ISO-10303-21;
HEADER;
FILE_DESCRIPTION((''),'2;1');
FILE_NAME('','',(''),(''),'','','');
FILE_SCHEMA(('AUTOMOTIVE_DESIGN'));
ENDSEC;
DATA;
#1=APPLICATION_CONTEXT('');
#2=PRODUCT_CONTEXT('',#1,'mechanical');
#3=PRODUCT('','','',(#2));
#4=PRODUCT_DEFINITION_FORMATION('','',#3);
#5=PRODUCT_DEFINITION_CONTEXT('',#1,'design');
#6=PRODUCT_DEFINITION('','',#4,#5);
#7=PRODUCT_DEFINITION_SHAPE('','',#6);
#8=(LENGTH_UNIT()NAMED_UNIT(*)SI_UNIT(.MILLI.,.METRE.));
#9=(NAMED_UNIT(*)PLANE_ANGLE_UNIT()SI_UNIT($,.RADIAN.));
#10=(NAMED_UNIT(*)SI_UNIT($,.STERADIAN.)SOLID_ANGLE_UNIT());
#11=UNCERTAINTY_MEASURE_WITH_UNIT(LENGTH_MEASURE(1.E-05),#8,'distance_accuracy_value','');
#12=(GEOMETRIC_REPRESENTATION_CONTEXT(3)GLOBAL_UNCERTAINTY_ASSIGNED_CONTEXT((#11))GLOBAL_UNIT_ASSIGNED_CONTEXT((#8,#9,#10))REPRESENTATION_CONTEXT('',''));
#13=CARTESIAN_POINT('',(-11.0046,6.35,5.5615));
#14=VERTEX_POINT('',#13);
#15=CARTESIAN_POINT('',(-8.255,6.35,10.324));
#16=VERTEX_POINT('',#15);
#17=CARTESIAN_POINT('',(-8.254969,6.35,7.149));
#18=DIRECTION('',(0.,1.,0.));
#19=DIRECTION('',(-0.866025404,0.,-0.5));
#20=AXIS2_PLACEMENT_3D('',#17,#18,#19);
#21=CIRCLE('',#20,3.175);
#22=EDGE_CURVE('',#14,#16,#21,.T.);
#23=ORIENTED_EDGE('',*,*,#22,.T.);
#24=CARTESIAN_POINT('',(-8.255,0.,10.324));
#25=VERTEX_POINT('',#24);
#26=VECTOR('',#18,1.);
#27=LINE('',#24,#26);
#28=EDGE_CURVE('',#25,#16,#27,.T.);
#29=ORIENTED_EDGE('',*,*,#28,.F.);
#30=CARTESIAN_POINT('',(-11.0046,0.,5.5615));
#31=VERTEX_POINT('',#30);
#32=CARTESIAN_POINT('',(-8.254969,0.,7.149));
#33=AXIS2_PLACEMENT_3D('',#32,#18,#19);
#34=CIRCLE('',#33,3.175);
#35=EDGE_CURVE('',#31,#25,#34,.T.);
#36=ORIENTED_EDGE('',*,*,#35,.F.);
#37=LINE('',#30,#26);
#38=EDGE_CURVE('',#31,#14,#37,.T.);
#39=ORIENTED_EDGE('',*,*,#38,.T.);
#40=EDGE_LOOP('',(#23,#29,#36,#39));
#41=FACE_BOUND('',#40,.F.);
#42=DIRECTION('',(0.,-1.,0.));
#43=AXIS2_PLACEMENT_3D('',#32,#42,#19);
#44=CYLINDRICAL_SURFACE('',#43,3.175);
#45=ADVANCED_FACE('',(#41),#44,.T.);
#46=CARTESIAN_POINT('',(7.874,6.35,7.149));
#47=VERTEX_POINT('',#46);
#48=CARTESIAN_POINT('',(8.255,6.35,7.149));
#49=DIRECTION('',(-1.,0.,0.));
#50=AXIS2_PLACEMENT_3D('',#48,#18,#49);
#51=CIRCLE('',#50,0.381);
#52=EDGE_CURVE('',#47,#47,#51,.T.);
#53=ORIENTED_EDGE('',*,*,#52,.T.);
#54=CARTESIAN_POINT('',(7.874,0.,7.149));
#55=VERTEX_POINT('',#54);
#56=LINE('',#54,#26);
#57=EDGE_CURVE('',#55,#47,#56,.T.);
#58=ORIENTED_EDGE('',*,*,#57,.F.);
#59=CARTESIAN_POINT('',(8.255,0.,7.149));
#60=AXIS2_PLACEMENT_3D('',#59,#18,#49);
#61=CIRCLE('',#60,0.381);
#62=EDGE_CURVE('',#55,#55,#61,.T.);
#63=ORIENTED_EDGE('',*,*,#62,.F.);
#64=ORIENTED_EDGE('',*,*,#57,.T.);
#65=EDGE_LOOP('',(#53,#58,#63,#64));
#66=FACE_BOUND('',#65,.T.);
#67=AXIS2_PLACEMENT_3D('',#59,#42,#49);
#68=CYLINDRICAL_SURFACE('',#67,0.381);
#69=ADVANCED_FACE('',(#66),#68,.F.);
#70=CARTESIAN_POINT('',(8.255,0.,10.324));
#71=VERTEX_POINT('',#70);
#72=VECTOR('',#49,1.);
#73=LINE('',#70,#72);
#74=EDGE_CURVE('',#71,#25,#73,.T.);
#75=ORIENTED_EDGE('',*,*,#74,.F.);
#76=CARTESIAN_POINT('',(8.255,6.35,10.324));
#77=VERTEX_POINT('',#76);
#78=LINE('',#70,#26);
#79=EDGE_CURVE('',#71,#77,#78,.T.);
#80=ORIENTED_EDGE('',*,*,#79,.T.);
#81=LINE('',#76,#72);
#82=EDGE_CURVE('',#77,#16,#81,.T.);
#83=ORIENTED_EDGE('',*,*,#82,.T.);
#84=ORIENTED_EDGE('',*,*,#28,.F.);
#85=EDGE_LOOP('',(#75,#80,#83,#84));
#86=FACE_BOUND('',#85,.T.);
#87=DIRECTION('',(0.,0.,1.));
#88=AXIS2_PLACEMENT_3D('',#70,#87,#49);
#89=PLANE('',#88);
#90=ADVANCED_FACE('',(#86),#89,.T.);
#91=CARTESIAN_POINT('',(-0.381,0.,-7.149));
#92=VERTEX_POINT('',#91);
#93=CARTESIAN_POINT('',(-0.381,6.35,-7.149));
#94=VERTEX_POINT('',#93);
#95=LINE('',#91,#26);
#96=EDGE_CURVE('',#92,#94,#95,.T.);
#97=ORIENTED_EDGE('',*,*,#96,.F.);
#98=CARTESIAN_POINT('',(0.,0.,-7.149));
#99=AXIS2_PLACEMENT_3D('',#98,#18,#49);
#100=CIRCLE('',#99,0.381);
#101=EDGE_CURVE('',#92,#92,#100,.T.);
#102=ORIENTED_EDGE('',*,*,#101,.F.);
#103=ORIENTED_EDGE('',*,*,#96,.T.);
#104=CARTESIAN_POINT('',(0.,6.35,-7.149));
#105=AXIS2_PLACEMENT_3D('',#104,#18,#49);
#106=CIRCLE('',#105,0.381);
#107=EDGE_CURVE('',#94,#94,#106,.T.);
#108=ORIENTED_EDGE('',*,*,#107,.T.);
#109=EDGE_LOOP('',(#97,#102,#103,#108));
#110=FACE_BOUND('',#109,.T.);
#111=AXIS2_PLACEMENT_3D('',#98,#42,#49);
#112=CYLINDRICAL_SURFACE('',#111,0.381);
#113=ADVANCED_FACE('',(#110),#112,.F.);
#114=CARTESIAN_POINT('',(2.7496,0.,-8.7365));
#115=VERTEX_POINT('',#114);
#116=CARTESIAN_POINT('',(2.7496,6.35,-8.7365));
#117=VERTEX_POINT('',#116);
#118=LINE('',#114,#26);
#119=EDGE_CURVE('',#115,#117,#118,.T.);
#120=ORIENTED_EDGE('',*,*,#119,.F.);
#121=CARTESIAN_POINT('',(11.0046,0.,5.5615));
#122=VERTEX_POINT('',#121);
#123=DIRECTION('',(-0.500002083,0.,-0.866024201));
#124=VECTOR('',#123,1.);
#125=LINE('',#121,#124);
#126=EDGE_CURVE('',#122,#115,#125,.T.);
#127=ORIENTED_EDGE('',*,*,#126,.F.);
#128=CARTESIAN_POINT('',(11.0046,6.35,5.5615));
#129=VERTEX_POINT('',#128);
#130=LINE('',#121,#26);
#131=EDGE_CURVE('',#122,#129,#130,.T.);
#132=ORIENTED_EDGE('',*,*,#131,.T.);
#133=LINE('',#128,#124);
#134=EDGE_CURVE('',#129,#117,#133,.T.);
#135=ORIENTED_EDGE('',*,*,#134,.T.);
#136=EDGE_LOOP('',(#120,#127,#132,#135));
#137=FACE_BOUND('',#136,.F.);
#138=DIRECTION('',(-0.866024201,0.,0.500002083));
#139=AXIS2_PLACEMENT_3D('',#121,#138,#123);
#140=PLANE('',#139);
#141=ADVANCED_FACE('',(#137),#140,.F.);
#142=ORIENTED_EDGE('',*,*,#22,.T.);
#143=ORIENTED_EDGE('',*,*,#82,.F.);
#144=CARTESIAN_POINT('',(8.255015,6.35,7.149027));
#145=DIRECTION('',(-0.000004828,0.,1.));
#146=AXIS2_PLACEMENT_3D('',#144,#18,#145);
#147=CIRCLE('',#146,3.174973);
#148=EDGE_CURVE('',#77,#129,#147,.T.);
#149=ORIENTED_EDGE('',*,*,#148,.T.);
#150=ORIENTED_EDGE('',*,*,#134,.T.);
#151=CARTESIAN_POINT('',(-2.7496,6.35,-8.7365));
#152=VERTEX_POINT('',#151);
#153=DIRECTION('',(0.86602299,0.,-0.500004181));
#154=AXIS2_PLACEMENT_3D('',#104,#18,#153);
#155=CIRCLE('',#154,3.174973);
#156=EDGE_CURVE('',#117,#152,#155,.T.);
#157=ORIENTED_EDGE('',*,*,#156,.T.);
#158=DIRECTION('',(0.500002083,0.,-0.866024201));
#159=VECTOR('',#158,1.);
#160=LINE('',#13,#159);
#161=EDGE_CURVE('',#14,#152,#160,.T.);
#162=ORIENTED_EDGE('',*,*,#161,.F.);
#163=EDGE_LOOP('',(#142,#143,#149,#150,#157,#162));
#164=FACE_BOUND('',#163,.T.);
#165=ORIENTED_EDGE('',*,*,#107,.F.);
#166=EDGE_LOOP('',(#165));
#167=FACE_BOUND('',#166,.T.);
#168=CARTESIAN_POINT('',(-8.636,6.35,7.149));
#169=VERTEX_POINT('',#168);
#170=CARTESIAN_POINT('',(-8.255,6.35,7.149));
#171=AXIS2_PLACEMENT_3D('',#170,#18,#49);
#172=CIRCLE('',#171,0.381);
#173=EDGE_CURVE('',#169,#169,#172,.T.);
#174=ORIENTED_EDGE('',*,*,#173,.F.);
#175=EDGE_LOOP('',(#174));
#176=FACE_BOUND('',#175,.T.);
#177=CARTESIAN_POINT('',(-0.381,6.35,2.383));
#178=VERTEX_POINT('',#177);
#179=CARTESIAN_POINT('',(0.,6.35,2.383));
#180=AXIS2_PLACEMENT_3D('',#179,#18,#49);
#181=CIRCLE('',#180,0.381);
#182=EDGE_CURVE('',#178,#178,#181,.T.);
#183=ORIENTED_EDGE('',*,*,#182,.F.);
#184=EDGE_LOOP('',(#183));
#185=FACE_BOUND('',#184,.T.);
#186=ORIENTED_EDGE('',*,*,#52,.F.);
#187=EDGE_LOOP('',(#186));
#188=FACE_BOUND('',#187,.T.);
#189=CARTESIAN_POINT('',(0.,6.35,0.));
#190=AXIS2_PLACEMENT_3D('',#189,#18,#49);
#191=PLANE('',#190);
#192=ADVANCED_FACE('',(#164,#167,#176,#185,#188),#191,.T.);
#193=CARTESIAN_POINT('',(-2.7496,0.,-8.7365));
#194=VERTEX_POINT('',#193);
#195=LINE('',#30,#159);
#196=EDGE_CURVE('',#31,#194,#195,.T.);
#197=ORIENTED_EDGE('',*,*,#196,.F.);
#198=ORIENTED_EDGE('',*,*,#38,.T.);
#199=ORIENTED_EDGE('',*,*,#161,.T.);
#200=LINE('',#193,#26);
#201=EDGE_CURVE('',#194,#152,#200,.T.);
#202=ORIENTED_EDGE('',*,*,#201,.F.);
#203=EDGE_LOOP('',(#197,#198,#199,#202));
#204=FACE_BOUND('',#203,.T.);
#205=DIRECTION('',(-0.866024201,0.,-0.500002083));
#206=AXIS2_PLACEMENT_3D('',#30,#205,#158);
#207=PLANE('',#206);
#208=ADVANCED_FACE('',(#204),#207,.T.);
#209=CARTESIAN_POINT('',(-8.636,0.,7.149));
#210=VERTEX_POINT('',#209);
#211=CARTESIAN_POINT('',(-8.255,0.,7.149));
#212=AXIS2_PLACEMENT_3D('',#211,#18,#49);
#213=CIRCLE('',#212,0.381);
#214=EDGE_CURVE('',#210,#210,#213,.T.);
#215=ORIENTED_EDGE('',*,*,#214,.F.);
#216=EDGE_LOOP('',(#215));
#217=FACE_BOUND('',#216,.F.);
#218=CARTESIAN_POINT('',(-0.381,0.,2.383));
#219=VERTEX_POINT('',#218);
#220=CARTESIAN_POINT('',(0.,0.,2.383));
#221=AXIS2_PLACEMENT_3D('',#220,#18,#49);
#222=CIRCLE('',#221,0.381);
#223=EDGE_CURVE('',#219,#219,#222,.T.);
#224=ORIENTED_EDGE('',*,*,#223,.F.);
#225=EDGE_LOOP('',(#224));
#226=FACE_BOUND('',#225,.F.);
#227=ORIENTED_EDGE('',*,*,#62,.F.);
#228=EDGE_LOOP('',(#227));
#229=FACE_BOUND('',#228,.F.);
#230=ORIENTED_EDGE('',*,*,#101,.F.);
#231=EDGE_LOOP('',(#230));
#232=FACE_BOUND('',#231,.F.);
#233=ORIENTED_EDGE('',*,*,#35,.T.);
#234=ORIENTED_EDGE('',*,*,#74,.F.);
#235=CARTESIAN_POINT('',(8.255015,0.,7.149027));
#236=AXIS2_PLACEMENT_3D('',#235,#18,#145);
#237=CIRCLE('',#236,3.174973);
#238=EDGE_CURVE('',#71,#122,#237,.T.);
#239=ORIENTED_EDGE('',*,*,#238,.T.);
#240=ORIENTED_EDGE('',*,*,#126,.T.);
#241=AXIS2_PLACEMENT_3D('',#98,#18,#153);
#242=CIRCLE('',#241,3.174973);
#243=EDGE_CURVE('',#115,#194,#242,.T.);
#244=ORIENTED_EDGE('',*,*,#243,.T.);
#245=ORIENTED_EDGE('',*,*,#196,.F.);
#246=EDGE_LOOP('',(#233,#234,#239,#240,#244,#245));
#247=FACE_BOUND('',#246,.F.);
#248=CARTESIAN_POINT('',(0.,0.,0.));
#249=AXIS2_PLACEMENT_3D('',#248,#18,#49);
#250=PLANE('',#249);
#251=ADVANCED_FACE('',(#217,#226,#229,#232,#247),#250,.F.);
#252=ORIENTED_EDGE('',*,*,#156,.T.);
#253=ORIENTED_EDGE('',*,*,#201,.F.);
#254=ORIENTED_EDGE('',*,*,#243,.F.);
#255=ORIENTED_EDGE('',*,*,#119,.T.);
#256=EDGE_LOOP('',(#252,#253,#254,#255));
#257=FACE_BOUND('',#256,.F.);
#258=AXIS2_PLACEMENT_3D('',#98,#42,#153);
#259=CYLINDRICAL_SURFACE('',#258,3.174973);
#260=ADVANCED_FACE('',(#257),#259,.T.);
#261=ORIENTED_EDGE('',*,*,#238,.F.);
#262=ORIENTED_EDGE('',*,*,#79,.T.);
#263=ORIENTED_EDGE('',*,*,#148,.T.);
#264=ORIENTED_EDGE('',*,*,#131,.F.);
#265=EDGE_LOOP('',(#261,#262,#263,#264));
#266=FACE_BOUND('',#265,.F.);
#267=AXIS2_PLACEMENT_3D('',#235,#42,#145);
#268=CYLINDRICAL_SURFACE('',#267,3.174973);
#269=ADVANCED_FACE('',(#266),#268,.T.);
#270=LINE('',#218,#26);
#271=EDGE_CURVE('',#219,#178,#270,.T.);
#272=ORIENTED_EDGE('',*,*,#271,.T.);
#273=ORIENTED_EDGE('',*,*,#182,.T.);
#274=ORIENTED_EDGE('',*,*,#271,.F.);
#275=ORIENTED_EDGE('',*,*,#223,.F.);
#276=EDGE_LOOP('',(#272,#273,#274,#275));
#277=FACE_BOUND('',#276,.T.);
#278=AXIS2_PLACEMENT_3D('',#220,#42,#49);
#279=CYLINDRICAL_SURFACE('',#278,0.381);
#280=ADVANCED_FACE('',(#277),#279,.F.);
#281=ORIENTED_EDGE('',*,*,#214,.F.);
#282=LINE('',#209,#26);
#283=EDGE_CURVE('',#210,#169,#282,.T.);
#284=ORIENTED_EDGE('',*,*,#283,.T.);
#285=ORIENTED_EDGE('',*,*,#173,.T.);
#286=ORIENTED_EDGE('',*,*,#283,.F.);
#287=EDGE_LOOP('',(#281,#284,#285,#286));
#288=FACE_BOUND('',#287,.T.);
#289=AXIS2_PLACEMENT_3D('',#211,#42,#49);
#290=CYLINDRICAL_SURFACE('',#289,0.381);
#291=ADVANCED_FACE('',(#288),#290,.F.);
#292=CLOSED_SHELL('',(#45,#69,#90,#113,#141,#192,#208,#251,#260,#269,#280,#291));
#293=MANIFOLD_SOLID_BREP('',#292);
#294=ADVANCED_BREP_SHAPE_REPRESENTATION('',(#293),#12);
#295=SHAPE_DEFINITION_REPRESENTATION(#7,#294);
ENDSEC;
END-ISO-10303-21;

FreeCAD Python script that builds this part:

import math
import FreeCAD as App
import Part
import Sketcher
Q = App.Units.Quantity

doc = App.newDocument("Part")
body = doc.addObject("PartDesign::Body", "Body")

# Sketch on XZ plane
sketch1 = body.newObject("Sketcher::SketchObject", "Sketch")
sketch1.AttachmentSupport = (doc.getObject("XZ_Plane"), [""])
sketch1.MapMode = "FlatFace"
sketch1.addGeometry(Part.LineSegment(App.Vector(-8.26, 10.32, 0), App.Vector(8.26, 10.32, 0)), False)
sketch1.addGeometry(Part.ArcOfCircle(Part.Circle(App.Vector(8.26, 7.15, 0), App.Vector(0, 0, 1), 3.17), math.radians(-30), math.radians(90)), False)
sketch1.addGeometry(Part.LineSegment(App.Vector(11, 5.56, 0), App.Vector(2.75, -8.74, 0)), False)
sketch1.addGeometry(Part.ArcOfCircle(Part.Circle(App.Vector(0, -7.15, 0), App.Vector(0, 0, 1), 3.17), math.radians(-150), math.radians(-30)), False)
sketch1.addGeometry(Part.LineSegment(App.Vector(-2.75, -8.74, 0), App.Vector(-11, 5.56, 0)), False)
sketch1.addGeometry(Part.ArcOfCircle(Part.Circle(App.Vector(-8.26, 7.15, 0), App.Vector(0, 0, 1), 3.17), math.radians(90), math.radians(210)), False)
sketch1.addGeometry(Part.Circle(App.Vector(0, -7.15, 0), App.Vector(0, 0, 1), 0.38), False)
sketch1.addGeometry(Part.Circle(App.Vector(8.26, 7.15, 0), App.Vector(0, 0, 1), 0.38), False)
sketch1.addGeometry(Part.Circle(App.Vector(0, 2.38, 0), App.Vector(0, 0, 1), 0.38), False)
sketch1.addGeometry(Part.Circle(App.Vector(-8.26, 7.15, 0), App.Vector(0, 0, 1), 0.38), False)
sketch1.addConstraint(Sketcher.Constraint("Tangent", 0, 2, 1, 2))
sketch1.addConstraint(Sketcher.Constraint("Tangent", 1, 1, 2, 1))
sketch1.addConstraint(Sketcher.Constraint("Tangent", 2, 2, 3, 2))
sketch1.addConstraint(Sketcher.Constraint("Tangent", 3, 1, 4, 1))
sketch1.addConstraint(Sketcher.Constraint("Tangent", 4, 2, 5, 2))
sketch1.addConstraint(Sketcher.Constraint("Tangent", 5, 1, 0, 1))
sketch1.addConstraint(Sketcher.Constraint("Horizontal", 0))
sketch1.addConstraint(Sketcher.Constraint("Coincident", 6, 3, 3, 3))
sketch1.addConstraint(Sketcher.Constraint("Coincident", 7, 3, 1, 3))
sketch1.addConstraint(Sketcher.Constraint("Coincident", 9, 3, 5, 3))
sketch1.addConstraint(Sketcher.Constraint("Equal", 1, 3))
sketch1.addConstraint(Sketcher.Constraint("Equal", 3, 5))
sketch1.addConstraint(Sketcher.Constraint("Equal", 6, 7))
sketch1.addConstraint(Sketcher.Constraint("Equal", 7, 8))
sketch1.addConstraint(Sketcher.Constraint("Equal", 8, 9))
sketch1.addConstraint(Sketcher.Constraint("Symmetric", 2, 2, 3, 1, -2))
sketch1.addConstraint(Sketcher.Constraint("PointOnObject", 8, 3, -2))
sketch1.addConstraint(Sketcher.Constraint("Diameter", 6, Q("0.03 in")))
sketch1.addConstraint(Sketcher.Constraint("Radius", 1, Q("0.125 in")))
sketch1.addConstraint(Sketcher.Constraint("DistanceX", 0, 1, 0, 2, Q("0.65 in")))
sketch1.addConstraint(Sketcher.Constraint("Distance", 2, Q("0.65 in")))
sketch1.addConstraint(Sketcher.Constraint("DistanceY", -1, 1, 1, 3, Q("7.149 mm")))
sketch1.addConstraint(Sketcher.Constraint("DistanceY", -1, 1, 8, 3, Q("2.383 mm")))
pad1 = body.newObject("PartDesign::Pad", "Pad")
pad1.Profile = sketch1
pad1.Length = Q("0.25 in")
pad1.Reversed = True

doc.recompute()
